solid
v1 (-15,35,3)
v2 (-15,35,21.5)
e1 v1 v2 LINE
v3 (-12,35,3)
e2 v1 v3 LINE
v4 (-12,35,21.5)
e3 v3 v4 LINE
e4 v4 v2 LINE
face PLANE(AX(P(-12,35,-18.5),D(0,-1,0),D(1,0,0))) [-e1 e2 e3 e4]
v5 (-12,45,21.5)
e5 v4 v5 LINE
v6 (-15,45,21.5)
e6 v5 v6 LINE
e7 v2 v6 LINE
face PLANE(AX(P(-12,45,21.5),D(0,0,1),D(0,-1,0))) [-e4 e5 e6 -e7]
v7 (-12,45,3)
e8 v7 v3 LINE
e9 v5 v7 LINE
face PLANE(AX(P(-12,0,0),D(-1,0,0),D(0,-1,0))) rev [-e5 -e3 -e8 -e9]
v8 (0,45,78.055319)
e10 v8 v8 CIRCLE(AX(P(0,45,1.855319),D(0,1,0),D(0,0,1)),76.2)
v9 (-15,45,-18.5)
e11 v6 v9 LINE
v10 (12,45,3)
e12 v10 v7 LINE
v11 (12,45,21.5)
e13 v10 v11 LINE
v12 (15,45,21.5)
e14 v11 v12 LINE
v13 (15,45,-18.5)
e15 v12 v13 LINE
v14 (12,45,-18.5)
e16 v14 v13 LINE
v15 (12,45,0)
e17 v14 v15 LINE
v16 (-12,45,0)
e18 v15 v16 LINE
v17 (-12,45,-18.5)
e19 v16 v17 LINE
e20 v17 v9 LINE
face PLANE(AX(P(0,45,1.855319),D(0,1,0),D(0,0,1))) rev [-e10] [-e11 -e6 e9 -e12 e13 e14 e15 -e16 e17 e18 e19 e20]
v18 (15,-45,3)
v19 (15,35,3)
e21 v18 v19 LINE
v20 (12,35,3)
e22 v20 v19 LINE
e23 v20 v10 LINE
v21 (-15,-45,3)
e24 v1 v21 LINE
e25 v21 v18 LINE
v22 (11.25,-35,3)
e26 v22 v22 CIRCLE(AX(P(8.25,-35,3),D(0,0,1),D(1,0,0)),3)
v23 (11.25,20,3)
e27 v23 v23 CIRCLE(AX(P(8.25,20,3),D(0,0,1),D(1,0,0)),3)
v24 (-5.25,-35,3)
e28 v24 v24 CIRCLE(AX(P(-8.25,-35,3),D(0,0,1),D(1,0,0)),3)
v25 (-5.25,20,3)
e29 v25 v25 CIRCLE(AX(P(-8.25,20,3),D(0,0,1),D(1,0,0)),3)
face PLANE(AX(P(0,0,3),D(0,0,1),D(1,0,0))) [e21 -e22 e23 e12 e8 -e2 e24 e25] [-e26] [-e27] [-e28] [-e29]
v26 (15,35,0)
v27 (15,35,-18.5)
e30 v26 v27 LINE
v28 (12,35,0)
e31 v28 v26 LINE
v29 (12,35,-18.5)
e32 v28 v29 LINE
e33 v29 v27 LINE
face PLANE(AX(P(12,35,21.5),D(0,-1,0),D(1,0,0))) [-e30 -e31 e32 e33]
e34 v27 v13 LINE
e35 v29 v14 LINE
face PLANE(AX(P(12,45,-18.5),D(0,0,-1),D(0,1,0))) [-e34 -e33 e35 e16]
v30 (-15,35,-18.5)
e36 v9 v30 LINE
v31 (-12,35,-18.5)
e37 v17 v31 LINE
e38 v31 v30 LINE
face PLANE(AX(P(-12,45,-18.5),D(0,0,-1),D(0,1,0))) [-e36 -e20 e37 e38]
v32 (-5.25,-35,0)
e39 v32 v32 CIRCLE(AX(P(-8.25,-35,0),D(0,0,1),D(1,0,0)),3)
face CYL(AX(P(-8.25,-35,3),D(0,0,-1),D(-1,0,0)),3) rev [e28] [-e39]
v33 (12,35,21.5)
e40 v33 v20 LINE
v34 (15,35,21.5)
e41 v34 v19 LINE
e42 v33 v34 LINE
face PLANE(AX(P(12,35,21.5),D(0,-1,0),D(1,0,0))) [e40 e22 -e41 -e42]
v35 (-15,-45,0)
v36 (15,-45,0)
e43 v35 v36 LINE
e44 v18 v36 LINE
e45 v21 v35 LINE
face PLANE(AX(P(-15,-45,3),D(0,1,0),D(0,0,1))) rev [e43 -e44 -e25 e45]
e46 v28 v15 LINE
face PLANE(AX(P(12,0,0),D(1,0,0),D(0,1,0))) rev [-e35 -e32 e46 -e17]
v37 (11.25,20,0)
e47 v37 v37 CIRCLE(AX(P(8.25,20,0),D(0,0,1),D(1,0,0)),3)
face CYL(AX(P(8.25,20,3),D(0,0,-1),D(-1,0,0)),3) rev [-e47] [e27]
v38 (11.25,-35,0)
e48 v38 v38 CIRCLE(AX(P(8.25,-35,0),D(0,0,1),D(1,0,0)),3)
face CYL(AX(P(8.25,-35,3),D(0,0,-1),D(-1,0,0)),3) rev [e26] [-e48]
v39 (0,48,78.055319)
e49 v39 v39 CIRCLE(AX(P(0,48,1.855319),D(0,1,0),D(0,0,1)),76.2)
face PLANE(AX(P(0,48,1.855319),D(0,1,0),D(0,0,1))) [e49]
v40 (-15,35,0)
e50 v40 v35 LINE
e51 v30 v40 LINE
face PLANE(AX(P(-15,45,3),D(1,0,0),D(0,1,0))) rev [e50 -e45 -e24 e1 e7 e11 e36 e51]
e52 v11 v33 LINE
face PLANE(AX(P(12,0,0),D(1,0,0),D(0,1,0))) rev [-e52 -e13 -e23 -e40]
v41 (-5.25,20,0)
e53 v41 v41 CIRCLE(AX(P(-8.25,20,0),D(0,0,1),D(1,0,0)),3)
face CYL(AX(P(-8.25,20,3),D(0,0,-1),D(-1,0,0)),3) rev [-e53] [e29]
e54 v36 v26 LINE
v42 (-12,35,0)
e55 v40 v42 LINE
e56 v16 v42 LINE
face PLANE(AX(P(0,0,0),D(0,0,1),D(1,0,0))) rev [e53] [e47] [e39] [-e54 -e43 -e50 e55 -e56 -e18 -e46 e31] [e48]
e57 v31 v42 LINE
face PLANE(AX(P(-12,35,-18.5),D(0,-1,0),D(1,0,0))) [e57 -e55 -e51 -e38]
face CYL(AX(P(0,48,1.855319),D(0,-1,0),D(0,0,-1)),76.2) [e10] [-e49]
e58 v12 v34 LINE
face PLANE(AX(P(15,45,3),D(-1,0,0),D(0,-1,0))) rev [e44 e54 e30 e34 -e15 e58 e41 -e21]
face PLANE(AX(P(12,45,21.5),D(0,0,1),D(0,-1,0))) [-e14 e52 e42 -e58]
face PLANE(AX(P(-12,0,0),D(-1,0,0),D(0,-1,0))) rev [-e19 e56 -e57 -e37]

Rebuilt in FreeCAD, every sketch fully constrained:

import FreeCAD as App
import Part
import Sketcher
from FreeCAD import Vector


def add_polygon(sketch, points):
    """Adds a closed chain of lines whose ends are joined by coincident constraints."""
    first, n = sketch.GeometryCount, len(points)
    for a, b in zip(points, points[1:] + points[:1]):
        sketch.addGeometry(Part.LineSegment(App.Vector(*a, 0), App.Vector(*b, 0)), False)
    for i in range(n):
        sketch.addConstraint(Sketcher.Constraint("Coincident", first + i, 2, first + (i + 1) % n, 1))

doc = App.newDocument("Part")
body = doc.addObject("PartDesign::Body", "Body")

# Sketch on XY plane
sketch1 = body.newObject("Sketcher::SketchObject", "Sketch")
sketch1.AttachmentSupport = (doc.getObject("XY_Plane"), [""])
sketch1.MapMode = "FlatFace"
add_polygon(sketch1, [(-15, 45), (-15, -45), (15, -45), (15, 45)])  # lines 0-3
sketch1.addGeometry(Part.Circle(Vector(-8.2, -35, 0), Vector(0, 0, 1), 3), False)  # 4
sketch1.addGeometry(Part.Circle(Vector(8.2, -35, 0), Vector(0, 0, 1), 3), False)  # 5
sketch1.addGeometry(Part.Circle(Vector(-8.2, 20, 0), Vector(0, 0, 1), 3), False)  # 6
sketch1.addGeometry(Part.Circle(Vector(8.2, 20, 0), Vector(0, 0, 1), 3), False)  # 7
sketch1.addConstraint([
    Sketcher.Constraint("Vertical", 0),
    Sketcher.Constraint("Horizontal", 1),
    Sketcher.Constraint("Vertical", 2),
    Sketcher.Constraint("Horizontal", 3),
    Sketcher.Constraint("Equal", 4, 5),
    Sketcher.Constraint("Equal", 5, 6),
    Sketcher.Constraint("Equal", 6, 7),
    Sketcher.Constraint("Symmetric", 0, 2, 2, 2, -1, 1),
    Sketcher.Constraint("Symmetric", 4, 3, 5, 3, -2),
    Sketcher.Constraint("Symmetric", 6, 3, 7, 3, -2),
    Sketcher.Constraint("Vertical", 4, 3, 6, 3),
    Sketcher.Constraint("Diameter", 4, 6.0),
    Sketcher.Constraint("DistanceX", 1, 1, 1, 2, 30.0),
    Sketcher.Constraint("DistanceY", 0, 2, 0, 1, 90.0),
    Sketcher.Constraint("DistanceY", 4, 3, -1, 1, 35.0),
    Sketcher.Constraint("DistanceY", -1, 1, 6, 3, 20.0),
    Sketcher.Constraint("DistanceX", 4, 3, 5, 3, 16.5),
])
pad1 = body.newObject("PartDesign::Pad", "Pad")
pad1.Profile = sketch1
pad1.Length = 3

# Sketch on XZ plane
sketch2 = body.newObject("Sketcher::SketchObject", "Sketch001")
sketch2.AttachmentSupport = (doc.getObject("XZ_Plane"), [""])
sketch2.MapMode = "FlatFace"
sketch2.AttachmentOffset = App.Placement(Vector(0, 0, -45), App.Rotation())
sketch2.addGeometry(Part.Circle(Vector(0, 2, 0), Vector(0, 0, 1), 76), False)
sketch2.addConstraint([
    Sketcher.Constraint("PointOnObject", 0, 3, -2),
    Sketcher.Constraint("Diameter", 0, 152.4),
    Sketcher.Constraint("DistanceY", -1, 1, 0, 3, 1.855319),
])
pad2 = body.newObject("PartDesign::Pad", "Pad001")
pad2.Profile = sketch2
pad2.Length = 3
pad2.Reversed = True

# Sketch on YZ plane
sketch3 = body.newObject("Sketcher::SketchObject", "Sketch002")
sketch3.AttachmentSupport = (doc.getObject("YZ_Plane"), [""])
sketch3.MapMode = "FlatFace"
sketch3.AttachmentOffset = App.Placement(Vector(0, 0, 15), App.Rotation())
add_polygon(sketch3, [(45, 22), (35, 22), (35, -18), (45, -18)])  # lines 0-3
sketch3.addConstraint([
    Sketcher.Constraint("Horizontal", 0),
    Sketcher.Constraint("Vertical", 1),
    Sketcher.Constraint("Horizontal", 2),
    Sketcher.Constraint("Vertical", 3),
    Sketcher.Constraint("DistanceX", 0, 2, 0, 1, 10.0),
    Sketcher.Constraint("DistanceY", 1, 2, 1, 1, 40.0),
    Sketcher.Constraint("DistanceX", -1, 1, 0, 2, 35.0),
    Sketcher.Constraint("DistanceY", -1, 1, 0, 2, 21.5),
])
pad3 = body.newObject("PartDesign::Pad", "Pad002")
pad3.Profile = sketch3
pad3.Length = 3
pad3.Reversed = True

# Sketch on YZ plane
sketch4 = body.newObject("Sketcher::SketchObject", "Sketch003")
sketch4.AttachmentSupport = (doc.getObject("YZ_Plane"), [""])
sketch4.MapMode = "FlatFace"
sketch4.AttachmentOffset = App.Placement(Vector(0, 0, -15), App.Rotation())
add_polygon(sketch4, [(45, -18), (35, -18), (35, 22), (45, 22)])  # lines 0-3
sketch4.addConstraint([
    Sketcher.Constraint("Horizontal", 0),
    Sketcher.Constraint("Vertical", 1),
    Sketcher.Constraint("Horizontal", 2),
    Sketcher.Constraint("Vertical", 3),
    Sketcher.Constraint("DistanceX", 0, 2, 0, 1, 10.0),
    Sketcher.Constraint("DistanceY", 1, 1, 1, 2, 40.0),
    Sketcher.Constraint("DistanceX", -1, 1, 0, 2, 35.0),
    Sketcher.Constraint("DistanceY", 0, 2, -1, 1, 18.5),
])
pad4 = body.newObject("PartDesign::Pad", "Pad003")
pad4.Profile = sketch4
pad4.Length = 3

doc.recompute()
